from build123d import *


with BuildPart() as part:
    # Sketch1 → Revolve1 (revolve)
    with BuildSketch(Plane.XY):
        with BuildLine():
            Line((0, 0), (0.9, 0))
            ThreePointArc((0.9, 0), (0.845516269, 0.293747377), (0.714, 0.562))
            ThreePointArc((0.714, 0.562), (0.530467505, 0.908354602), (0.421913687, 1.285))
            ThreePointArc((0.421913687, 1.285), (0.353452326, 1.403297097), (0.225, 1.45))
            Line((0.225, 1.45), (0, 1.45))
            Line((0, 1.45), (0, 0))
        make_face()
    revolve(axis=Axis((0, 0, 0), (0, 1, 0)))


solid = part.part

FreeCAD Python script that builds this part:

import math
import FreeCAD as App
import Part
import Sketcher

doc = App.newDocument("Part")
params = doc.addObject("Spreadsheet::Sheet", "Params")
for row, (alias, value) in enumerate([
    ("sketch1_radius", "1.1 mm"),
    ("sketch1_radius2", "1.9 mm"),
    ("sketch1_radius3", "0.2 mm"),
    ("sketch1_width", "0.9 mm"),
    ("sketch1_height", "1.45 mm"),
    ("revolution_angle", "360 deg"),
], start=1):
    params.set(f"A{row}", alias)
    params.set(f"B{row}", "=" + value)
    params.setAlias(f"B{row}", alias)

body = doc.addObject("PartDesign::Body", "Body")

# Sketch on XY plane
sketch1 = body.newObject("Sketcher::SketchObject", "Sketch")
sketch1.AttachmentSupport = (doc.getObject("XY_Plane"), [""])
sketch1.MapMode = "FlatFace"
sketch1.addGeometry(Part.LineSegment(App.Vector(0, 0, 0), App.Vector(0.9, 0, 0)), False)
sketch1.addGeometry(Part.ArcOfCircle(Part.Circle(App.Vector(-0.198776, -0.051873, 0), App.Vector(0, 0, 1), 1.1), math.radians(2.702893), math.radians(33.922152)), False)
sketch1.addGeometry(Part.ArcOfCircle(Part.Circle(App.Vector(2.292138, 1.620056, 0), App.Vector(0, 0, 1), 1.9), math.radians(-169.843062), math.radians(-146.160297)), False)
sketch1.addGeometry(Part.ArcOfCircle(Part.Circle(App.Vector(0.225, 1.25, 0), App.Vector(0, 0, 1), 0.2), math.radians(10.078658), math.radians(90)), False)
sketch1.addGeometry(Part.LineSegment(App.Vector(0.225, 1.45, 0), App.Vector(0, 1.45, 0)), False)
sketch1.addGeometry(Part.LineSegment(App.Vector(0, 1.45, 0), App.Vector(0, 0, 0)), False)
sketch1.addConstraint(Sketcher.Constraint("Coincident", 0, 2, 1, 1))
sketch1.addConstraint(Sketcher.Constraint("Coincident", 1, 2, 2, 2))
sketch1.addConstraint(Sketcher.Constraint("Coincident", 2, 1, 3, 1))
sketch1.addConstraint(Sketcher.Constraint("Tangent", 3, 2, 4, 1))
sketch1.addConstraint(Sketcher.Constraint("Coincident", 4, 2, 5, 1))
sketch1.addConstraint(Sketcher.Constraint("Coincident", 5, 2, 0, 1))
sketch1.addConstraint(Sketcher.Constraint("Horizontal", 0))
sketch1.addConstraint(Sketcher.Constraint("Horizontal", 4))
sketch1.addConstraint(Sketcher.Constraint("Vertical", 5))
sketch1.addConstraint(Sketcher.Constraint("Coincident", 5, 2, -1, 1))
sketch1.addConstraint(Sketcher.Constraint("Radius", 1, 1.1))
sketch1.addConstraint(Sketcher.Constraint("Radius", 2, 1.9))
sketch1.addConstraint(Sketcher.Constraint("Radius", 3, 0.2))
sketch1.addConstraint(Sketcher.Constraint("DistanceX", 0, 1, 0, 2, 0.9))
sketch1.addConstraint(Sketcher.Constraint("DistanceY", 5, 2, 5, 1, 1.45))
sketch1.addConstraint(Sketcher.Constraint("DistanceX", 4, 2, 4, 1, 0.225))
sketch1.addConstraint(Sketcher.Constraint("DistanceX", -1, 1, 1, 2, 0.714))
sketch1.addConstraint(Sketcher.Constraint("DistanceY", -1, 1, 1, 2, 0.562))
sketch1.addConstraint(Sketcher.Constraint("DistanceY", -1, 1, 2, 1, 1.285))
sketch1.setExpression("Constraints[10]", "Params.sketch1_radius")
sketch1.setExpression("Constraints[11]", "Params.sketch1_radius2")
sketch1.setExpression("Constraints[12]", "Params.sketch1_radius3")
sketch1.setExpression("Constraints[13]", "Params.sketch1_width")
sketch1.setExpression("Constraints[14]", "Params.sketch1_height")
revolution = body.newObject("PartDesign::Revolution", "Revolution")
revolution.Profile = sketch1
revolution.ReferenceAxis = (sketch1, ["V_Axis"])
revolution.setExpression("Angle", "Params.revolution_angle")

doc.recompute()
